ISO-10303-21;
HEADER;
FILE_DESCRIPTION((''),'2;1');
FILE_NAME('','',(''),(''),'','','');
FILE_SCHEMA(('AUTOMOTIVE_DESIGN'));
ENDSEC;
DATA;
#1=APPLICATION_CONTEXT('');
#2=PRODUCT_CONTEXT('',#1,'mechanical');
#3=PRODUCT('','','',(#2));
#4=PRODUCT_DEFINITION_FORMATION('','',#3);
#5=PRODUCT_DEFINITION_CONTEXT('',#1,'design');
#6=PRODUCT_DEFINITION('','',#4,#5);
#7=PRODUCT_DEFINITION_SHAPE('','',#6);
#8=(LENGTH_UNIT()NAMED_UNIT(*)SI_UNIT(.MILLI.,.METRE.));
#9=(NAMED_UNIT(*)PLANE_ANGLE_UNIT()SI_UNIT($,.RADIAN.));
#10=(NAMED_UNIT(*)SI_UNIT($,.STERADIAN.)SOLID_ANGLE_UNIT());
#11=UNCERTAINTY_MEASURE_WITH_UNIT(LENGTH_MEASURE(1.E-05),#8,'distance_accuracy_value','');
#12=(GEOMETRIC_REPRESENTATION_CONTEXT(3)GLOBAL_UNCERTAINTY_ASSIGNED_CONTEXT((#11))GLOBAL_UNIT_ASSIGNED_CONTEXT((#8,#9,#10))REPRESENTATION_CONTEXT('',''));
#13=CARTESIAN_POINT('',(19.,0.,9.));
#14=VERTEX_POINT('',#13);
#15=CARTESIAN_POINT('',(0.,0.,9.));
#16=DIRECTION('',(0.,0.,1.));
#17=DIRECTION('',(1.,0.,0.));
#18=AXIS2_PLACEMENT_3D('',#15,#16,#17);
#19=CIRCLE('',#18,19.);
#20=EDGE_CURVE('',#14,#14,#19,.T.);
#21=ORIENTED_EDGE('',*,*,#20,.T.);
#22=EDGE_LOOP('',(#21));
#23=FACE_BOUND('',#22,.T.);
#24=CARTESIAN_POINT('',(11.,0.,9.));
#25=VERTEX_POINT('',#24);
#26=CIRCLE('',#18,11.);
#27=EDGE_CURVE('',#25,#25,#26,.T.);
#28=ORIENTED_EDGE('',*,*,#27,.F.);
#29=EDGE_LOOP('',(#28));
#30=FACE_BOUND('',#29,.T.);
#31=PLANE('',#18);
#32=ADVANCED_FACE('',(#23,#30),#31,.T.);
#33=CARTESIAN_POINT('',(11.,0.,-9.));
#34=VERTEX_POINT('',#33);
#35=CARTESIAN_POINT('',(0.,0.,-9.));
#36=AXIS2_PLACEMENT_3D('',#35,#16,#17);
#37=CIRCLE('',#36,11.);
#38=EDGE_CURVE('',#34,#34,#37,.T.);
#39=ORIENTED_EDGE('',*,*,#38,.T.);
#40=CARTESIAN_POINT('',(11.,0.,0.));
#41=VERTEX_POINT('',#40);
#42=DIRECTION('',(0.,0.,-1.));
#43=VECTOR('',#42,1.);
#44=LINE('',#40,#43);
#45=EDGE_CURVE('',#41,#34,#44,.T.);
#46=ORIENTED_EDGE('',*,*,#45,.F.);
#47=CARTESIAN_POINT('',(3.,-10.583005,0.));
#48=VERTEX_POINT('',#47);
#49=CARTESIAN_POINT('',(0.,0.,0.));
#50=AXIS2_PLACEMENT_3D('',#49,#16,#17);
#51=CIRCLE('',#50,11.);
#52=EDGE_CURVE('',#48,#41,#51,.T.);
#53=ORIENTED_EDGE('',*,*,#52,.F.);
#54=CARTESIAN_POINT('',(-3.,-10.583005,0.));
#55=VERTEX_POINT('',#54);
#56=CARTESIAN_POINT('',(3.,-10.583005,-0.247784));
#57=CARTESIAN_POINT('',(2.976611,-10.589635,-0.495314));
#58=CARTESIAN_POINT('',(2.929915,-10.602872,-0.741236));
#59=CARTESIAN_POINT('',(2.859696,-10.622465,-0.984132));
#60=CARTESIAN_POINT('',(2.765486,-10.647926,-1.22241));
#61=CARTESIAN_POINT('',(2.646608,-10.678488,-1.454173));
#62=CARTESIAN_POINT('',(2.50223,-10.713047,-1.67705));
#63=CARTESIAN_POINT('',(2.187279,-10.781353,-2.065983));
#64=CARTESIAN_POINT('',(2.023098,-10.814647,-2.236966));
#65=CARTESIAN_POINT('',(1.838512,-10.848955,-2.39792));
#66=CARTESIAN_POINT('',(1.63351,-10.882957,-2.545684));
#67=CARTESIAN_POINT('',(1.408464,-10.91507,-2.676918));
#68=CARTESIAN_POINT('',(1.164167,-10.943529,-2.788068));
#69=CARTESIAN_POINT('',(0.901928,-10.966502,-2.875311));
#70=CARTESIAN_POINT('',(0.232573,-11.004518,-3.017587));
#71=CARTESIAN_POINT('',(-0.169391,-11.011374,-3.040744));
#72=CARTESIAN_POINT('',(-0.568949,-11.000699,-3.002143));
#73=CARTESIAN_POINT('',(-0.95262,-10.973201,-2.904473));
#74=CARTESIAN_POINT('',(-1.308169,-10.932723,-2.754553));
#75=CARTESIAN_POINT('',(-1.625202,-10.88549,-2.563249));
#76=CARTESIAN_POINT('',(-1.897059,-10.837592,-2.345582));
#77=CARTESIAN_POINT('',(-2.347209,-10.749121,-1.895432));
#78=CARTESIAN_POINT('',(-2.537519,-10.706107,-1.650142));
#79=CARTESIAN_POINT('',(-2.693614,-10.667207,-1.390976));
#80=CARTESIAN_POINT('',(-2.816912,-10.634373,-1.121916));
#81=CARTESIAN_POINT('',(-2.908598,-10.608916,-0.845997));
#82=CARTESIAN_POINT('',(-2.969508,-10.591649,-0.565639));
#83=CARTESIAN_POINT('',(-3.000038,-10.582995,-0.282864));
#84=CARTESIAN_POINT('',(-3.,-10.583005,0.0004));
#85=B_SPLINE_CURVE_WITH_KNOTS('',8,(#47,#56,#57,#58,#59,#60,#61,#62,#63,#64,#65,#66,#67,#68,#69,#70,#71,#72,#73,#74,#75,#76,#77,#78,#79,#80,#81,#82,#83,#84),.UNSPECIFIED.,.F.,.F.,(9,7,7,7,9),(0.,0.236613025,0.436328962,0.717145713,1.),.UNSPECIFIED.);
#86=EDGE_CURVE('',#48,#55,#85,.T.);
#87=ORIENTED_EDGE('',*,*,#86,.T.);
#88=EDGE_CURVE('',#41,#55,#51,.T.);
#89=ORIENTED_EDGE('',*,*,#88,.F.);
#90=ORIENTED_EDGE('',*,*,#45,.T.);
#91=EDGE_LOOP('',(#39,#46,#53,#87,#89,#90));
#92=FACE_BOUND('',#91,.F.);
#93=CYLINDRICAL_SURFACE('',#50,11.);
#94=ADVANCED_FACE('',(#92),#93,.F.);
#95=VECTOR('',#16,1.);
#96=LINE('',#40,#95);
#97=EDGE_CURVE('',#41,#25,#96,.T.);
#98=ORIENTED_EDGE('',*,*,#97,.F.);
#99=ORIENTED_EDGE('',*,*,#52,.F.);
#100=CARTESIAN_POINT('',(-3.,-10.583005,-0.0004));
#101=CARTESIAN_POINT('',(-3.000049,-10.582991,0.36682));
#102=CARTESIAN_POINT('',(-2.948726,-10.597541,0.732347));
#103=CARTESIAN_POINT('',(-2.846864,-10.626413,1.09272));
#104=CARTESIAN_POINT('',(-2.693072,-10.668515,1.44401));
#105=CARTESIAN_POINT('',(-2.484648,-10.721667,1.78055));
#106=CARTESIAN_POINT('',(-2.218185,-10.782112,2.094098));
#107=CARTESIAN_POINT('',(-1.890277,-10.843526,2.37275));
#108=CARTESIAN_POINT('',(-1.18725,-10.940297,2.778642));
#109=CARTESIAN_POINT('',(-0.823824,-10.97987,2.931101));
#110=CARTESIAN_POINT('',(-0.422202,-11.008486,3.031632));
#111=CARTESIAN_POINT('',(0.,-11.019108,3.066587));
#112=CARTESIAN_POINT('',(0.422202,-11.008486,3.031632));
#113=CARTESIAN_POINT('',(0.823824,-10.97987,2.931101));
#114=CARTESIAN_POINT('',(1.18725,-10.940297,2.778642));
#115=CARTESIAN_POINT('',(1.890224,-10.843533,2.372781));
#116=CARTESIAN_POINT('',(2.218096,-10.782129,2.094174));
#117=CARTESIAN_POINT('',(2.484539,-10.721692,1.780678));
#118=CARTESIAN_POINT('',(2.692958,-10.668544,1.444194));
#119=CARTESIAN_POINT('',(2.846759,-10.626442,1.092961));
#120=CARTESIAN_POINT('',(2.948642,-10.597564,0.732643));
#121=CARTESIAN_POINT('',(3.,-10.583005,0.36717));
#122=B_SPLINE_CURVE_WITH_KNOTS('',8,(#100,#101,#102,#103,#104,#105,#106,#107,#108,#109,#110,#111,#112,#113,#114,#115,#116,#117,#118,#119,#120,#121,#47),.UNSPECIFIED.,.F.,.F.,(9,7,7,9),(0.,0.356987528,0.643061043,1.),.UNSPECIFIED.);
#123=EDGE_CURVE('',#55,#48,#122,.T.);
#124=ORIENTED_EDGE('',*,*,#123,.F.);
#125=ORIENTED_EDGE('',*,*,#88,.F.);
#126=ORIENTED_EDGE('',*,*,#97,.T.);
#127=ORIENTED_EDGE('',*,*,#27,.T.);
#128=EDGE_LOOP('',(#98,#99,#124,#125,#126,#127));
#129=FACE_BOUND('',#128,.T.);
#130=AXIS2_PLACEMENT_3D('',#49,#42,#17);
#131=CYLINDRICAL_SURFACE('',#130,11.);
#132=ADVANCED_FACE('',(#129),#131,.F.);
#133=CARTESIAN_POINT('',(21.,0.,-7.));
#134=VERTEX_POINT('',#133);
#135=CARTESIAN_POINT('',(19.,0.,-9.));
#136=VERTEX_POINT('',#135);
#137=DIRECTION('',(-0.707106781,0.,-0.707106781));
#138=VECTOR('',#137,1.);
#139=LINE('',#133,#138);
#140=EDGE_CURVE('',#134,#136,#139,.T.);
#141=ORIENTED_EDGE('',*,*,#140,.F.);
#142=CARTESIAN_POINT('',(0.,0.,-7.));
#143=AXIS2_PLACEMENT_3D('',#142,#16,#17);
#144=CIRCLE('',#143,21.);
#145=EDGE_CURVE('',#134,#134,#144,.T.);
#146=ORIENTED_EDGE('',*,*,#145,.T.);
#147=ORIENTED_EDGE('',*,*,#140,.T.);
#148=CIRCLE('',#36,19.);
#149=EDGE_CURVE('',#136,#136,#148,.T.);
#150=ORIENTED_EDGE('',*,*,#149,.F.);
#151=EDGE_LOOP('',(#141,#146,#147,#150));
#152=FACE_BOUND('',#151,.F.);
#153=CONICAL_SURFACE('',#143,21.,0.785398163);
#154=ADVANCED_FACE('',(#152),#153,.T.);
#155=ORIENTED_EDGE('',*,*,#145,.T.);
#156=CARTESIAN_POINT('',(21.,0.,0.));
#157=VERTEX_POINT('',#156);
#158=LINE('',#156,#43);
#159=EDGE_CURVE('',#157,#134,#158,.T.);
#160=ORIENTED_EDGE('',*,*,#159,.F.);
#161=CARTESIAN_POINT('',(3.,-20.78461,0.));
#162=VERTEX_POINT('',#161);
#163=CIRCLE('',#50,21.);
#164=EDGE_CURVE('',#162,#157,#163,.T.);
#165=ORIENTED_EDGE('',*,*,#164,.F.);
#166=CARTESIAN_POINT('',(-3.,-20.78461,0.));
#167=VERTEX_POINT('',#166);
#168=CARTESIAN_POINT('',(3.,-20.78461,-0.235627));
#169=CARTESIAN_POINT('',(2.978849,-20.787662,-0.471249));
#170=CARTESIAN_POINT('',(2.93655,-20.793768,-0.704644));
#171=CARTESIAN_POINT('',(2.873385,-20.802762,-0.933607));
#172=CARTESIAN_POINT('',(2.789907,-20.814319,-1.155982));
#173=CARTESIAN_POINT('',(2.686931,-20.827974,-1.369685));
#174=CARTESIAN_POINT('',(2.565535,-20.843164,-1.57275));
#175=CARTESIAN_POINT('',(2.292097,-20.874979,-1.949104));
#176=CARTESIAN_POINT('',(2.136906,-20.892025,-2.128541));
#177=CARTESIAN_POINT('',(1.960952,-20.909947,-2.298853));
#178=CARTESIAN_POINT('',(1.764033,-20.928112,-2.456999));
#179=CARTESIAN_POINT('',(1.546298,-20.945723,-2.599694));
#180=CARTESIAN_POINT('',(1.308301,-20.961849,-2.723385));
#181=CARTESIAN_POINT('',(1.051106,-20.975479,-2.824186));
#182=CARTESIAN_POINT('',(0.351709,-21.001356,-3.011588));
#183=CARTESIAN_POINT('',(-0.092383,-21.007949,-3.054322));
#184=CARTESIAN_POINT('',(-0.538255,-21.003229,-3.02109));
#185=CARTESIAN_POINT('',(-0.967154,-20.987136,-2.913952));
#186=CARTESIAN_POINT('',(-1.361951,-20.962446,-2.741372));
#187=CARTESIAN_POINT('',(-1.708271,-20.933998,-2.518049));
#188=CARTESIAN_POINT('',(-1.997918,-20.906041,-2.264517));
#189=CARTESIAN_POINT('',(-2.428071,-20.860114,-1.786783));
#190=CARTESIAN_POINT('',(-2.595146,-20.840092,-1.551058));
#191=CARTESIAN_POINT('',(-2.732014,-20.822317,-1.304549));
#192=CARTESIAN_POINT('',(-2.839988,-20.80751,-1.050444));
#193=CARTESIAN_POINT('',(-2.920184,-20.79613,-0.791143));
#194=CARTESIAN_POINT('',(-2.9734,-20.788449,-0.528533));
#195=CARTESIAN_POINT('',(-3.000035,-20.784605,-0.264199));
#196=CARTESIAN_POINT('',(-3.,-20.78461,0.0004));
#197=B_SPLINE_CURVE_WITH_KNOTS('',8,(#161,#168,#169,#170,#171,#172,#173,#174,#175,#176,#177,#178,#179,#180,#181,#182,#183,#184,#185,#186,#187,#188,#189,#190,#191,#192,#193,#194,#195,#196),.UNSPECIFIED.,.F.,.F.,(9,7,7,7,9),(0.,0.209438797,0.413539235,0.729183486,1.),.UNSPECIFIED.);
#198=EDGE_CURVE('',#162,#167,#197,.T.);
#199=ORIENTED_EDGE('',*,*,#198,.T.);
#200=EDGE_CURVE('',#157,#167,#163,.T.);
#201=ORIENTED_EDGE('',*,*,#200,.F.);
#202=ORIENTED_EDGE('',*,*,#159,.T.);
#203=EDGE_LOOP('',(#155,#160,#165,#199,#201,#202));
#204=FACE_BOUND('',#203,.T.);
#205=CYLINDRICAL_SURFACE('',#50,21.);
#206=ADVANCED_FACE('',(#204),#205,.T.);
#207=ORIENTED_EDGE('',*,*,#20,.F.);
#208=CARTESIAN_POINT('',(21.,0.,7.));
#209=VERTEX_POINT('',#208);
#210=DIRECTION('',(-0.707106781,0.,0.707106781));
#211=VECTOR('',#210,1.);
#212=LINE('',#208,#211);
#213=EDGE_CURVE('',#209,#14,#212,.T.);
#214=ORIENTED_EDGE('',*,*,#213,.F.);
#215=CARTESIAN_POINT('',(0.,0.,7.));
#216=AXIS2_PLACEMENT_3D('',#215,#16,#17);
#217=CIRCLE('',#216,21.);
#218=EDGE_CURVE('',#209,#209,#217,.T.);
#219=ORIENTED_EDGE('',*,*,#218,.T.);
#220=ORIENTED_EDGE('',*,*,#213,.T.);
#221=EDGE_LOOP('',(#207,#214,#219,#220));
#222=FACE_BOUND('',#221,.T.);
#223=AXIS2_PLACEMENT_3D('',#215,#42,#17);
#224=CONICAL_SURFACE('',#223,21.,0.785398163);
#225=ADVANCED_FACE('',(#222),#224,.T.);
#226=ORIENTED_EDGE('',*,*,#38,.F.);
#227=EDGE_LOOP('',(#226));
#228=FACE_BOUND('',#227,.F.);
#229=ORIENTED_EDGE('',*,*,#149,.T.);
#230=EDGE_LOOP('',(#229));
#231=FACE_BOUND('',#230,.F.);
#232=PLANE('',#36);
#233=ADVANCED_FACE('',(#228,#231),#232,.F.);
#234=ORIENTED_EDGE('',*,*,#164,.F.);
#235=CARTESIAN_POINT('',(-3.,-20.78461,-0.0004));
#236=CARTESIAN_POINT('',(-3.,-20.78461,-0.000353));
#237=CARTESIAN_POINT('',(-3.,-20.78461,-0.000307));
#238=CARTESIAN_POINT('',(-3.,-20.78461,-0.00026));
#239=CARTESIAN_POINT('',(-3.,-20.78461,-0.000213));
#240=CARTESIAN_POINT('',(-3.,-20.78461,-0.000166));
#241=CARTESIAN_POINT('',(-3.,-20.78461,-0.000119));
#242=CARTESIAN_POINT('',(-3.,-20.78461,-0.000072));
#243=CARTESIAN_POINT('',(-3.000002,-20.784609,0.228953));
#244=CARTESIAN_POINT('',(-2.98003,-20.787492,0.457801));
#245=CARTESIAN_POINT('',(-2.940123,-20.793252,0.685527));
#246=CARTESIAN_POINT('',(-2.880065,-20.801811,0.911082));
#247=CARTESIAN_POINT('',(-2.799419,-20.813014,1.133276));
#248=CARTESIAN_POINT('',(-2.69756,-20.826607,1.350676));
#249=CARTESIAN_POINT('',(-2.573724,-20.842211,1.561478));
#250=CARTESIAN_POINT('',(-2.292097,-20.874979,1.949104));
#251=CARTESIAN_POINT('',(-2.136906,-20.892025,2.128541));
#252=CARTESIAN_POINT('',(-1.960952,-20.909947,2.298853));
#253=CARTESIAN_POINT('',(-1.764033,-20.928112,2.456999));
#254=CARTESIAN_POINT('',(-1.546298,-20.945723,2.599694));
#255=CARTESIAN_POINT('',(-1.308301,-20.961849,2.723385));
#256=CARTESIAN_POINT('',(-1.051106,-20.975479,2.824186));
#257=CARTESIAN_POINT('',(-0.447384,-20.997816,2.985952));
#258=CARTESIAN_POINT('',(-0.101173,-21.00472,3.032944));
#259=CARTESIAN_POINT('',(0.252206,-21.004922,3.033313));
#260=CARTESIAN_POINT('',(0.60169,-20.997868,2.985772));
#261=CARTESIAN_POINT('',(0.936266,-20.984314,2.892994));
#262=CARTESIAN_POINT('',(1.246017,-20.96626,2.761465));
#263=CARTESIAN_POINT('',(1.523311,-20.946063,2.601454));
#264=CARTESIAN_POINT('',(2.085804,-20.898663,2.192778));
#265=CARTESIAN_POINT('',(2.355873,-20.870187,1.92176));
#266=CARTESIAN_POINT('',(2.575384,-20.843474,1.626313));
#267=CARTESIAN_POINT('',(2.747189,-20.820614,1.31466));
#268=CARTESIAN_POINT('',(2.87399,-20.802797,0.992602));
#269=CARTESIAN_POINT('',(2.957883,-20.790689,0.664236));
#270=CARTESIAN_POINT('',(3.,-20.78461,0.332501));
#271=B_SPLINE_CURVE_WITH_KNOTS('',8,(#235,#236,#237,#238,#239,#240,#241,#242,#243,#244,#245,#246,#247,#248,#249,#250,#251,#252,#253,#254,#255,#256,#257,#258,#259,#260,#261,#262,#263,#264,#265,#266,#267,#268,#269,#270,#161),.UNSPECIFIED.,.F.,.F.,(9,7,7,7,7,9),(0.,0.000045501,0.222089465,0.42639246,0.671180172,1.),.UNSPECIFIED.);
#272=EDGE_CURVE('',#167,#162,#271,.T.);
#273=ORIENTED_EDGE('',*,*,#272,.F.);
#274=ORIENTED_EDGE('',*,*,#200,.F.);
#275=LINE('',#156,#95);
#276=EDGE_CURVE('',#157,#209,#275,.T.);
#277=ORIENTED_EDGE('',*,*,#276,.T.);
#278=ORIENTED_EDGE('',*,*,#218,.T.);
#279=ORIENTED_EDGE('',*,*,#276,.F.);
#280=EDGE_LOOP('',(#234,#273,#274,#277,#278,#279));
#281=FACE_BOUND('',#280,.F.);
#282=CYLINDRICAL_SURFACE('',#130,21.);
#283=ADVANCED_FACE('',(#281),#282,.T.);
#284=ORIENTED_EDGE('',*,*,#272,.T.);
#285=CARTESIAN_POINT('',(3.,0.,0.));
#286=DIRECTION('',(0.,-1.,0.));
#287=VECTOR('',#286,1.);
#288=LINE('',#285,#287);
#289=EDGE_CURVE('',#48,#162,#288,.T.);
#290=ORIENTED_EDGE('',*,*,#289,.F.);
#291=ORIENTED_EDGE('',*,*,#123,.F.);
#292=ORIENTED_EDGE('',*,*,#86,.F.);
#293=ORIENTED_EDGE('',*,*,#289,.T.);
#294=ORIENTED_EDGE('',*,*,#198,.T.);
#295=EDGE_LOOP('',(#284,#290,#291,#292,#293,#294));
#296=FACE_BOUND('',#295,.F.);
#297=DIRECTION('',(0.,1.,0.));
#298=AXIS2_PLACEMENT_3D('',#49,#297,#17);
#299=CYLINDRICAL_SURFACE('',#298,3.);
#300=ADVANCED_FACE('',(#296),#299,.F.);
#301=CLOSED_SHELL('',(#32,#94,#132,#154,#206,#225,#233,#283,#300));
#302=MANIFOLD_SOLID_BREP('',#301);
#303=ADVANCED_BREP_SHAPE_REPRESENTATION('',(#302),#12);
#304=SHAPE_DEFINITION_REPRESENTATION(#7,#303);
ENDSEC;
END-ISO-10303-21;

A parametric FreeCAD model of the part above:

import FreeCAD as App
import Part
import Sketcher


def edges_at(feature, points):
    """Names of the edges that pass closest to the given points."""
    edges = feature.Shape.Edges
    near = lambda p: min(range(len(edges)), key=lambda i: edges[i].distToShape(Part.Vertex(*p))[0])
    return sorted({f"Edge{near(p) + 1}" for p in points})

doc = App.newDocument("Part")
body = doc.addObject("PartDesign::Body", "Body")

sketch1 = body.newObject("Sketcher::SketchObject", "Sketch")
sketch1.AttachmentSupport = (doc.getObject("XY_Plane"), [""])
sketch1.MapMode = "FlatFace"
sketch1.addGeometry([
    Part.Circle(App.Vector(0, 0, 0), App.Vector(0, 0, 1), 21),
    Part.Circle(App.Vector(0, 0, 0), App.Vector(0, 0, 1), 11),
], False)
sketch1.addConstraint([
    Sketcher.Constraint("Coincident", 0, 3, -1, 1),
    Sketcher.Constraint("Coincident", 1, 3, -1, 1),
    Sketcher.Constraint("Diameter", 0, 42.0),
    Sketcher.Constraint("Diameter", 1, 22.0),
])
pad1 = body.newObject("PartDesign::Pad", "Pad")
pad1.Profile = sketch1
pad1.Length = 18
pad1.Midplane = True
doc.recompute()

chamfer = body.newObject("PartDesign::Chamfer", "Chamfer")
chamfer.Base = (pad1, edges_at(pad1, [(-19.579, -7.594, 9), (-19.579, 7.594, -9)]))
chamfer.Size = 2

sketch2 = body.newObject("Sketcher::SketchObject", "Sketch001")
sketch2.AttachmentSupport = (doc.getObject("XZ_Plane"), [""])
sketch2.MapMode = "FlatFace"
sketch2.addGeometry(Part.Circle(App.Vector(0, 0, 0), App.Vector(0, 0, 1), 3), False)
sketch2.addConstraint([
    Sketcher.Constraint("Coincident", 0, 3, -1, 1),
    Sketcher.Constraint("Diameter", 0, 6.0),
])
pocket1 = body.newObject("PartDesign::Pocket", "Pocket")
pocket1.Profile = sketch2
pocket1.Length = 32
pocket1.Reversed = True

doc.recompute()
